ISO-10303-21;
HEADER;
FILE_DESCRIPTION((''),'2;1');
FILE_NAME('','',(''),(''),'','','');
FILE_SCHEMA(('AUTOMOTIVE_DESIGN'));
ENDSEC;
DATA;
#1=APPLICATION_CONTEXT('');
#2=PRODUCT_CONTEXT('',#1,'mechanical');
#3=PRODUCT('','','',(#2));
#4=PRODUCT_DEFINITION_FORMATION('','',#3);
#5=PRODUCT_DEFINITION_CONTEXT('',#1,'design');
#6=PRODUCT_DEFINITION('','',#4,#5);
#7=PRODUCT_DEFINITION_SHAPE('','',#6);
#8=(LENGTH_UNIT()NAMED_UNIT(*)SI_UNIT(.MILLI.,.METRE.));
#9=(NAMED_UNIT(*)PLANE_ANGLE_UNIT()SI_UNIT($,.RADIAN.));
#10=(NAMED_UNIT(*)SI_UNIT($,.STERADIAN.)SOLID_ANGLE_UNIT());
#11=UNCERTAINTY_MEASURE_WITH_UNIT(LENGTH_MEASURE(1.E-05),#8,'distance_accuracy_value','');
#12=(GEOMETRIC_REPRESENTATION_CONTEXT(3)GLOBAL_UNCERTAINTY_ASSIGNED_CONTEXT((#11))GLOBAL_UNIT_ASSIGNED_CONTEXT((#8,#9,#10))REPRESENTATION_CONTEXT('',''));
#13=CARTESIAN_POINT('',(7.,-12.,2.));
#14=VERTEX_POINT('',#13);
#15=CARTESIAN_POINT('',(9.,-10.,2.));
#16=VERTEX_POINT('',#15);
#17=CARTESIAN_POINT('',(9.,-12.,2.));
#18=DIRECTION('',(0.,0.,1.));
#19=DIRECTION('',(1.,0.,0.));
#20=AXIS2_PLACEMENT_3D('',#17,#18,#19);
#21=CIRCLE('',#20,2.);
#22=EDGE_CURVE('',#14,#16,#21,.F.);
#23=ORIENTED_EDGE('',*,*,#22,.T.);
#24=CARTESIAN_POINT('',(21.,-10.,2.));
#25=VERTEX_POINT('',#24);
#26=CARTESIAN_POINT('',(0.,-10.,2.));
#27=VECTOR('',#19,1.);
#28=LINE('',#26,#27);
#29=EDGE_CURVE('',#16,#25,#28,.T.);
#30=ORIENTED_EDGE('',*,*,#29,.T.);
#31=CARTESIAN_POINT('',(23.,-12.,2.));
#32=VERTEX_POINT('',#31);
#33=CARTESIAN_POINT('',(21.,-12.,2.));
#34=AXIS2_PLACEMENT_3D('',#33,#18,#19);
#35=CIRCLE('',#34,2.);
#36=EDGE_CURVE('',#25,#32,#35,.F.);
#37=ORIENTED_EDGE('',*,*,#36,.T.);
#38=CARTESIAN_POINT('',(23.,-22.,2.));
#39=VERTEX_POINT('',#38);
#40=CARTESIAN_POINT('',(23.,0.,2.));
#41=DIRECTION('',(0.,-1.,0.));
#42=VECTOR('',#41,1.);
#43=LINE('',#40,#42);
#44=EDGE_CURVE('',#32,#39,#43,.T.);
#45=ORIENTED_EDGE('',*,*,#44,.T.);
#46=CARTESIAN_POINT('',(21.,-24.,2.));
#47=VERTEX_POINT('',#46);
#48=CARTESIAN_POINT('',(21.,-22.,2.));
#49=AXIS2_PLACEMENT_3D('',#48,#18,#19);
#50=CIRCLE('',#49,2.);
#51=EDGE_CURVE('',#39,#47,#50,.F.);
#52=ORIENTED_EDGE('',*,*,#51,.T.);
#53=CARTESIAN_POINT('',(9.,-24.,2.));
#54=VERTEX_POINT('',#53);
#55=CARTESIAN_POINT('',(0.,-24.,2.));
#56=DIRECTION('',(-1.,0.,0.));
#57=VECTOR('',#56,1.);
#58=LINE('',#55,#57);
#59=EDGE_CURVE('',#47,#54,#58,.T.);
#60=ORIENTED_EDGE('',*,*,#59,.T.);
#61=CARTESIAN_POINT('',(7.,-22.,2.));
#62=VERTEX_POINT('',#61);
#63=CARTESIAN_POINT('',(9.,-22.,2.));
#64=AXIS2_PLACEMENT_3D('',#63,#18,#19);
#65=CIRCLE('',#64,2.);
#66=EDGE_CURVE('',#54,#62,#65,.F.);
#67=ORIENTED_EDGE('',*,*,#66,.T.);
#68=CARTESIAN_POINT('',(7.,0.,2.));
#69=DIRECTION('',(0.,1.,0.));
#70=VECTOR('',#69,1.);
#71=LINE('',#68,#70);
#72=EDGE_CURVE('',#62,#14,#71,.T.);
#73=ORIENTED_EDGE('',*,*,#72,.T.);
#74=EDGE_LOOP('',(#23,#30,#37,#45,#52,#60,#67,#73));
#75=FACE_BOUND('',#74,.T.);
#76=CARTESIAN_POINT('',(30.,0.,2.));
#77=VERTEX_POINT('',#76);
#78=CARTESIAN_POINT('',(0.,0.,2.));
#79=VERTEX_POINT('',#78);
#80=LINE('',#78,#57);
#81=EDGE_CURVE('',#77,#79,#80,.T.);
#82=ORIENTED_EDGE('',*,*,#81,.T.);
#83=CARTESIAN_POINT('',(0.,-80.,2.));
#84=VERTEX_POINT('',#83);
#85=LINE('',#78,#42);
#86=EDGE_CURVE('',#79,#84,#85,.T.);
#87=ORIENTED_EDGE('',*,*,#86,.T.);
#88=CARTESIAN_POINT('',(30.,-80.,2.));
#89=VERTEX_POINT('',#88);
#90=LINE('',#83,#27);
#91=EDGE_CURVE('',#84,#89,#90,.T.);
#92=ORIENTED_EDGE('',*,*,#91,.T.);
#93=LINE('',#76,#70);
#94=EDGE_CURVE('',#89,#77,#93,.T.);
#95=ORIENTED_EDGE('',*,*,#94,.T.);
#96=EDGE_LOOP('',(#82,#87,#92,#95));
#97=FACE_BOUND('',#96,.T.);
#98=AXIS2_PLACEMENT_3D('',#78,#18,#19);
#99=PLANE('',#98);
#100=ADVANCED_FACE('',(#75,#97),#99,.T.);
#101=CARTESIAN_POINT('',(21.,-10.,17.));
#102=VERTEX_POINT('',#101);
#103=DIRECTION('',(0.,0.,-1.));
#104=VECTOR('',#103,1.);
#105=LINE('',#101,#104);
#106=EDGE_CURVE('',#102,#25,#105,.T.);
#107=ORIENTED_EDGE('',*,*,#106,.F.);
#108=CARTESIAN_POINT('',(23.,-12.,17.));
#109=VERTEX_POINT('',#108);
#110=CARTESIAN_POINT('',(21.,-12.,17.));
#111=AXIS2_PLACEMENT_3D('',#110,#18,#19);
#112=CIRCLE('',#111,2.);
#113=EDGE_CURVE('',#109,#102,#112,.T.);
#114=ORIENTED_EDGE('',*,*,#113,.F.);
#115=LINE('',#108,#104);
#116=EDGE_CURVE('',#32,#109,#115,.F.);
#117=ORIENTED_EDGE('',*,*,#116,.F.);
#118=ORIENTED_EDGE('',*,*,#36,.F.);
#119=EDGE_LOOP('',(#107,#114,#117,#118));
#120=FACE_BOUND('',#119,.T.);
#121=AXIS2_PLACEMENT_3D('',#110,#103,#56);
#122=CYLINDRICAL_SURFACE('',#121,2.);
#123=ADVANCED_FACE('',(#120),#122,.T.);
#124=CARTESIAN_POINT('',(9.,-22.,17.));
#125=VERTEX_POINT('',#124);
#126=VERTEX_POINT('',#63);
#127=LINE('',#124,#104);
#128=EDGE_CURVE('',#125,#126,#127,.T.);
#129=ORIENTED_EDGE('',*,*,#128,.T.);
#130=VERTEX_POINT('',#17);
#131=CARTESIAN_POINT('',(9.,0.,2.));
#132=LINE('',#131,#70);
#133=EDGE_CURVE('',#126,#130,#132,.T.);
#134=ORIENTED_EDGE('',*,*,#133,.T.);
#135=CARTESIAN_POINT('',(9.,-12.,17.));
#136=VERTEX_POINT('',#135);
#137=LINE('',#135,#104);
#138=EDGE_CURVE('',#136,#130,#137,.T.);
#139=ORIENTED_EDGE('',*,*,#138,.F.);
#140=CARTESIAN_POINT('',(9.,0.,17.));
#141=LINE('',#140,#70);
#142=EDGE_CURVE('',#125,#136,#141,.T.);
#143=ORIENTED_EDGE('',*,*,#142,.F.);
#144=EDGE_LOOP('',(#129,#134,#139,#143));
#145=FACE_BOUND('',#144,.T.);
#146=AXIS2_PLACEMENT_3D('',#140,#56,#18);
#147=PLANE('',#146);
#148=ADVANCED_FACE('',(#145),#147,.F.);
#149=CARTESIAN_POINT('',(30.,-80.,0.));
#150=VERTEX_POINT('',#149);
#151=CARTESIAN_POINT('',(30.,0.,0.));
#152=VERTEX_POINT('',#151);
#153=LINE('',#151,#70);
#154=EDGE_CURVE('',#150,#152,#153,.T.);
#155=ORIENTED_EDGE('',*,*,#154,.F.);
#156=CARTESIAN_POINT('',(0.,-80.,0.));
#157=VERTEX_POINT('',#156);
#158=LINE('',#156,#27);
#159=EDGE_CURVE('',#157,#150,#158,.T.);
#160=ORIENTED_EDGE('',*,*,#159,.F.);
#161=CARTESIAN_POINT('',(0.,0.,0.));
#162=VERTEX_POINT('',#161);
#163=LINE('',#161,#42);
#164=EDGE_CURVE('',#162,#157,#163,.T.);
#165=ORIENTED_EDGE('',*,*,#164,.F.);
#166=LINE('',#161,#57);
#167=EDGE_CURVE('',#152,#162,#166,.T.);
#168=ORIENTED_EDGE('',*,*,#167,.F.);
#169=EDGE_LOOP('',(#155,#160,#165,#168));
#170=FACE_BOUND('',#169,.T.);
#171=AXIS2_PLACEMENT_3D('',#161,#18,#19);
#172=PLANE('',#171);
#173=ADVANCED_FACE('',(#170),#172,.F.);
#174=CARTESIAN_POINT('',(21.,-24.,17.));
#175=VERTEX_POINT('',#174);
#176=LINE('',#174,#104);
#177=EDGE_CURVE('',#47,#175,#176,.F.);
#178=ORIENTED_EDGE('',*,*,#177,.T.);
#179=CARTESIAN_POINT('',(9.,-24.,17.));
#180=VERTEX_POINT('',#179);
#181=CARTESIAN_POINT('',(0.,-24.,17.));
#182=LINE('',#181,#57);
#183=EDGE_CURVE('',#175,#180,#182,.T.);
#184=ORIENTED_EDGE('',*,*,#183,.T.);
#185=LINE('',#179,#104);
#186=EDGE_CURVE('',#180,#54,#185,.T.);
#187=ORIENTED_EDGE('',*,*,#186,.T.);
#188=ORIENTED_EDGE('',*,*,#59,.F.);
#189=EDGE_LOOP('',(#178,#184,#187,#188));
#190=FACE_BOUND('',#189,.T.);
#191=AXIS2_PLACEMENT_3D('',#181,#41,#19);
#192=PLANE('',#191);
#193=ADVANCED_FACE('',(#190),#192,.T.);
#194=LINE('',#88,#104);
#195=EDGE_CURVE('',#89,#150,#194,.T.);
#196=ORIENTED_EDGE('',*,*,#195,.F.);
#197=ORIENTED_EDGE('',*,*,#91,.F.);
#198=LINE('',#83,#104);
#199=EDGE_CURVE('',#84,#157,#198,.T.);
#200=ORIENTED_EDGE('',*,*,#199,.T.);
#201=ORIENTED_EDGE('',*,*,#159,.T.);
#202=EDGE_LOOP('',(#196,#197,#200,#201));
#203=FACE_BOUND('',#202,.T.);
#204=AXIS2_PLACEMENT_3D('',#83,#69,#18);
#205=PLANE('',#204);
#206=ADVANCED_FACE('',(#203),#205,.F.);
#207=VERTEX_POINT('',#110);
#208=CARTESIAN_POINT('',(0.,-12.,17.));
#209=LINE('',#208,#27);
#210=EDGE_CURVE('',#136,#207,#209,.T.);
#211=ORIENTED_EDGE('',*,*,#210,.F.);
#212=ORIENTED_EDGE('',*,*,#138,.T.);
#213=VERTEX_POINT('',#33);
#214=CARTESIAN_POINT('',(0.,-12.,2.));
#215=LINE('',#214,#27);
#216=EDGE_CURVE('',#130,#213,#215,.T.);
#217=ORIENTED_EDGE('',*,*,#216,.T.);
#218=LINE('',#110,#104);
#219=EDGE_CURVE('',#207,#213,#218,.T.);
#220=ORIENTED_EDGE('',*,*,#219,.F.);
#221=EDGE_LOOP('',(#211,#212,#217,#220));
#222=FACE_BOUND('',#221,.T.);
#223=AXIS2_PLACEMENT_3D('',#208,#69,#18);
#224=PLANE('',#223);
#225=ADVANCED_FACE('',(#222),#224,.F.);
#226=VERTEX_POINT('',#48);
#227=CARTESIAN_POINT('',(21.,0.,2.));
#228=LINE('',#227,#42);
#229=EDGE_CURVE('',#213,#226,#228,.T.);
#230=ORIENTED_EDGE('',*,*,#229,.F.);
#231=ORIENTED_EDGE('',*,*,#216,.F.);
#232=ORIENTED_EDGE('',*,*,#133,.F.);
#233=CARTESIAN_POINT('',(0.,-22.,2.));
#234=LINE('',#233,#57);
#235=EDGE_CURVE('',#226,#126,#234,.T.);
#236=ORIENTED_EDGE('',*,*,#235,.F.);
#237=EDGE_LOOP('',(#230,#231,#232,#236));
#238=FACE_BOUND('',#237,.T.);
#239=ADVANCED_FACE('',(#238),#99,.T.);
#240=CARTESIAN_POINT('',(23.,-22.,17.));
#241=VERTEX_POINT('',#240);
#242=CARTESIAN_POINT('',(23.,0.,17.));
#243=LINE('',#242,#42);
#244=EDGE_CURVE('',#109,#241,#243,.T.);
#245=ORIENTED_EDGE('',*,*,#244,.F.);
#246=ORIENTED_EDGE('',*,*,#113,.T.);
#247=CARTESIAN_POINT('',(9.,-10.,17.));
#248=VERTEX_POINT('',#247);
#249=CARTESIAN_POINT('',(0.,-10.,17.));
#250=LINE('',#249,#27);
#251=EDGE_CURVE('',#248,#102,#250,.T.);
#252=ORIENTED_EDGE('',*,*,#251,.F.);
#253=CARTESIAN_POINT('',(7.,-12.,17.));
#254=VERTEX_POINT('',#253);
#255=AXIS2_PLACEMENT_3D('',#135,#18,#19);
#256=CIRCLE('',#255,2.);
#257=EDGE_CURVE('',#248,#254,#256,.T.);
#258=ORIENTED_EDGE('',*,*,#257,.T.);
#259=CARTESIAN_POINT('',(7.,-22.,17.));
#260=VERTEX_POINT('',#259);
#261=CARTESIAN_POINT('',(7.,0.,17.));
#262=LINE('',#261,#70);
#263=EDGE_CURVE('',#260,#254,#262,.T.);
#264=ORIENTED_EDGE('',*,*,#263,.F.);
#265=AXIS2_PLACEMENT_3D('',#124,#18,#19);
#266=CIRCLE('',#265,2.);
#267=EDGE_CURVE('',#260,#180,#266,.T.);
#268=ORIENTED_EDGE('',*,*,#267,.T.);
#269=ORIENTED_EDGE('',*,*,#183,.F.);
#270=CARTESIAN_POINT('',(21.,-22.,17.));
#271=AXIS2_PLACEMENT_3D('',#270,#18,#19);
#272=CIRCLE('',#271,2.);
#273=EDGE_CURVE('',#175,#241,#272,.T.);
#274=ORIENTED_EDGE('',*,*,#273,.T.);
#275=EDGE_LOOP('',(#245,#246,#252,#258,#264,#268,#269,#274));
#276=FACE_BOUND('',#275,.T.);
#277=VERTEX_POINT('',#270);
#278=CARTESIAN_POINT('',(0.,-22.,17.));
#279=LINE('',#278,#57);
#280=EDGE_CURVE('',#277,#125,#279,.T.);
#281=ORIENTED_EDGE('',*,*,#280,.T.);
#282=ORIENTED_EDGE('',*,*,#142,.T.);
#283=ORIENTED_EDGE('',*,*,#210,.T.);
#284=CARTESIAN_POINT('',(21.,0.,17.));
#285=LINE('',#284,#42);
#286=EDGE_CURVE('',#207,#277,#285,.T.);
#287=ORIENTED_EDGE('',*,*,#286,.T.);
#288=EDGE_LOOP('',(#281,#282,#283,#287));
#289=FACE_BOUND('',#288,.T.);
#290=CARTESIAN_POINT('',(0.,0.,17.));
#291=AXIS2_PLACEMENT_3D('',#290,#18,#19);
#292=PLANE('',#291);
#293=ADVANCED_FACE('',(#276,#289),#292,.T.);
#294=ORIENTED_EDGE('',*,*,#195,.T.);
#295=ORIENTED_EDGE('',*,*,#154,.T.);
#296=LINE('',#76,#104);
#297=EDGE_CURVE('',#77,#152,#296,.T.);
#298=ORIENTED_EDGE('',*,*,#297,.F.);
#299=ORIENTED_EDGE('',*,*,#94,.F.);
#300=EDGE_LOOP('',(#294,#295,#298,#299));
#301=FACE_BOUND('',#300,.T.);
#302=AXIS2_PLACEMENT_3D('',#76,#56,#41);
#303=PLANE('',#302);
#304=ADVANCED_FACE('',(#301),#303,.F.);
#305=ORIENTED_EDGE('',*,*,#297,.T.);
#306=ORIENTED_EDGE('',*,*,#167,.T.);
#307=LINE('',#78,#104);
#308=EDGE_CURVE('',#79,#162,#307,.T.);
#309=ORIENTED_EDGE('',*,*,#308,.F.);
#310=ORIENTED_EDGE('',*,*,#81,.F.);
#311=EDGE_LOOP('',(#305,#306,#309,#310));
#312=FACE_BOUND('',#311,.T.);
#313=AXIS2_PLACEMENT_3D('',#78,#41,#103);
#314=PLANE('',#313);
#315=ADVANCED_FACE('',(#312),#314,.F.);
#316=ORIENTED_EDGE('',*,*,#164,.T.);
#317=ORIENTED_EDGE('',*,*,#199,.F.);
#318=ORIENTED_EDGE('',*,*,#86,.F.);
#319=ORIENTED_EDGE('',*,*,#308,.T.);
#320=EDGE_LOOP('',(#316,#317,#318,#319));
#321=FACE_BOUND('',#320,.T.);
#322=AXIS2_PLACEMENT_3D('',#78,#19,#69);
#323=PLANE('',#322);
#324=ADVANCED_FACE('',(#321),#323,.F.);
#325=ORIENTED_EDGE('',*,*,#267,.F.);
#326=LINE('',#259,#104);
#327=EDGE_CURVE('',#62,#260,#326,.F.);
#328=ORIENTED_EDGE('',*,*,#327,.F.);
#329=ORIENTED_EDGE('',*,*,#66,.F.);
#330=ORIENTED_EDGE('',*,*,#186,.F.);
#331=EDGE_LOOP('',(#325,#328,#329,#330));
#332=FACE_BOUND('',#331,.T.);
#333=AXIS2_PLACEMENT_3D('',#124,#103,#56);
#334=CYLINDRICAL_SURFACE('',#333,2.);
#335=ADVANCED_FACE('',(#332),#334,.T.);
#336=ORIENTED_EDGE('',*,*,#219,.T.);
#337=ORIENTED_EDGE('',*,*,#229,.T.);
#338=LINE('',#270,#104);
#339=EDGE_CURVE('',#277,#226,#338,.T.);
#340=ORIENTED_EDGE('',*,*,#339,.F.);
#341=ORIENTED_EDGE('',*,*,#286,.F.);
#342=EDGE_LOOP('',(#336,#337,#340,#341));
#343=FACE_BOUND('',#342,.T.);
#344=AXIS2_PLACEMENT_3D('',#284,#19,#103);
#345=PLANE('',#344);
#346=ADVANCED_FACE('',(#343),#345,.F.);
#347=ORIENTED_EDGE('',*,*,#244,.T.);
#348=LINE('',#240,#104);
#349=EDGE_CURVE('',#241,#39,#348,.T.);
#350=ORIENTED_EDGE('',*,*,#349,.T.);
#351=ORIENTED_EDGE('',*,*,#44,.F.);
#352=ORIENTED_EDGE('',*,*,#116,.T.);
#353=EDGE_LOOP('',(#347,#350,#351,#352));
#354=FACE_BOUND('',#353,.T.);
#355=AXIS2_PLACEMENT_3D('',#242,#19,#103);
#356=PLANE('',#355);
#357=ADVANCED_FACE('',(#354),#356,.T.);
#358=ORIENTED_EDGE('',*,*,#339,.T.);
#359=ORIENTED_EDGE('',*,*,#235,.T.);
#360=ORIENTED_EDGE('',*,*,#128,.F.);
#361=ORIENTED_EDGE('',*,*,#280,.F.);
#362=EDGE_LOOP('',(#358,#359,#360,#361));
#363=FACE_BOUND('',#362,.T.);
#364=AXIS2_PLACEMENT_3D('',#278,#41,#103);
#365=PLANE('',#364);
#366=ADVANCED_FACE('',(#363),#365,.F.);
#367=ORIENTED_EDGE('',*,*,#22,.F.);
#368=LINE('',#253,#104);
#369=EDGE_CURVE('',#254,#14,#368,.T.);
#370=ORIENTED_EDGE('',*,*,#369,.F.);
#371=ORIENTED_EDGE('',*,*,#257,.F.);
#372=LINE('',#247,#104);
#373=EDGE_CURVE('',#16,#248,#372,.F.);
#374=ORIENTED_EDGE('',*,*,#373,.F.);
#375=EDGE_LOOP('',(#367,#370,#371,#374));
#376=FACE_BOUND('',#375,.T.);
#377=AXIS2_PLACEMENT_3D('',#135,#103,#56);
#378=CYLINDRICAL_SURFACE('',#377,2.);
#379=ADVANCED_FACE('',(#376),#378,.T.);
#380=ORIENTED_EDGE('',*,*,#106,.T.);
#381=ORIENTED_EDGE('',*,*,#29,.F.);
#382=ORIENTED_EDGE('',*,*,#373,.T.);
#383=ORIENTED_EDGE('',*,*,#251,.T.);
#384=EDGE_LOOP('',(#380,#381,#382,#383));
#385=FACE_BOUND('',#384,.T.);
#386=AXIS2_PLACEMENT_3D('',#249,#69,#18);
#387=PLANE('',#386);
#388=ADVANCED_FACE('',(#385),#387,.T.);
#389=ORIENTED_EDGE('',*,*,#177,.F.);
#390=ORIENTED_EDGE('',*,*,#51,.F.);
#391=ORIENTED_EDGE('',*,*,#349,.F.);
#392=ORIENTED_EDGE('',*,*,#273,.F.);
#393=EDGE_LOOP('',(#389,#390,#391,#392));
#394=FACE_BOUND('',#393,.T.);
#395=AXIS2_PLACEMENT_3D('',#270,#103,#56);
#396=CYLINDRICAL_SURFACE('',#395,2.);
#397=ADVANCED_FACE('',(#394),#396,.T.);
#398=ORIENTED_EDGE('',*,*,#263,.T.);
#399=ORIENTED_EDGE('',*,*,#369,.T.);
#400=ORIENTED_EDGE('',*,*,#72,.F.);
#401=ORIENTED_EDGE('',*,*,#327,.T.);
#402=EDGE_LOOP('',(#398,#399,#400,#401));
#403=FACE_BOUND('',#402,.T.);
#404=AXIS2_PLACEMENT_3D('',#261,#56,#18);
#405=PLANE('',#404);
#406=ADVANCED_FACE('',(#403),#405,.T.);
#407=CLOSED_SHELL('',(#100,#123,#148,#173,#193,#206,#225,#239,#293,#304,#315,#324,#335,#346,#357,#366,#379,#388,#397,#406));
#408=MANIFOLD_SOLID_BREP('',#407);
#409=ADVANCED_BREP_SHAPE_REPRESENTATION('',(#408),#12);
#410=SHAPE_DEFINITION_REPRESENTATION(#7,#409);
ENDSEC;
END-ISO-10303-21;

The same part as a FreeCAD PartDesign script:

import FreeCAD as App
import Part
import Sketcher
from FreeCAD import Vector
Q = App.Units.Quantity


def edges_at(feature, points):
    """Names of the edges that pass closest to the given points."""
    edges = feature.Shape.Edges
    near = lambda p: min(range(len(edges)), key=lambda i: edges[i].distToShape(Part.Vertex(*p))[0])
    return sorted({f"Edge{near(p) + 1}" for p in points})

doc = App.newDocument("Part")
params = doc.addObject("Spreadsheet::Sheet", "Params")
for row, (alias, value) in enumerate([
    ("sketch1_width", "30 mm"),
    ("sketch1_height", "80 mm"),
    ("pad1_length", "2 mm"),
    ("sketch2_width", "16 mm"),
    ("sketch2_width2", "12 mm"),
    ("sketch2_height", "14 mm"),
    ("sketch2_height2", "10 mm"),
    ("pad2_length", "15 mm"),
    ("fillet_radius", "2 mm"),
], start=1):
    params.set(f"A{row}", alias)
    params.set(f"B{row}", "=" + value)
    params.setAlias(f"B{row}", alias)

body = doc.addObject("PartDesign::Body", "Body")

sketch1 = doc.addObject("Sketcher::SketchObject", "Sketch")
body.addObject(sketch1)
sketch1.AttachmentSupport = (doc.XY_Plane, [""])
sketch1.MapMode = "FlatFace"
sketch1.addGeometry([
    Part.LineSegment(Vector(0, 0, 0), Vector(0, -80, 0)),
    Part.LineSegment(Vector(0, -80, 0), Vector(30, -80, 0)),
    Part.LineSegment(Vector(30, -80, 0), Vector(30, 0, 0)),
    Part.LineSegment(Vector(30, 0, 0), Vector(0, 0, 0)),
], False)
sketch1.addConstraint([
    Sketcher.Constraint("Coincident", 0, 2, 1, 1),
    Sketcher.Constraint("Coincident", 1, 2, 2, 1),
    Sketcher.Constraint("Coincident", 2, 2, 3, 1),
    Sketcher.Constraint("Coincident", 3, 2, 0, 1),
    Sketcher.Constraint("Vertical", 0),
    Sketcher.Constraint("Horizontal", 1),
    Sketcher.Constraint("Vertical", 2),
    Sketcher.Constraint("Horizontal", 3),
    Sketcher.Constraint("Coincident", 3, 2, -1, 1),
    Sketcher.Constraint("DistanceX", 1, 1, 1, 2, Q("30 mm")),
    Sketcher.Constraint("DistanceY", 0, 2, 0, 1, Q("80 mm")),
])
sketch1.setExpression("Constraints[9]", "Params.sketch1_width")
sketch1.setExpression("Constraints[10]", "Params.sketch1_height")
pad1 = doc.addObject("PartDesign::Pad", "Pad")
body.addObject(pad1)
pad1.Profile = sketch1
pad1.setExpression("Length", "Params.pad1_length")

sketch2 = doc.addObject("Sketcher::SketchObject", "Sketch001")
body.addObject(sketch2)
sketch2.AttachmentSupport = (doc.XY_Plane, [""])
sketch2.MapMode = "FlatFace"
sketch2.AttachmentOffset = App.Placement(Vector(0, 0, 2), App.Rotation())
sketch2.addGeometry([
    Part.LineSegment(Vector(7, -10, 0), Vector(7, -24, 0)),
    Part.LineSegment(Vector(7, -24, 0), Vector(23, -24, 0)),
    Part.LineSegment(Vector(23, -24, 0), Vector(23, -10, 0)),
    Part.LineSegment(Vector(23, -10, 0), Vector(7, -10, 0)),
    Part.LineSegment(Vector(21, -22, 0), Vector(9, -22, 0)),
    Part.LineSegment(Vector(9, -22, 0), Vector(9, -12, 0)),
    Part.LineSegment(Vector(9, -12, 0), Vector(21, -12, 0)),
    Part.LineSegment(Vector(21, -12, 0), Vector(21, -22, 0)),
], False)
sketch2.addConstraint([
    Sketcher.Constraint("Coincident", 0, 2, 1, 1),
    Sketcher.Constraint("Coincident", 1, 2, 2, 1),
    Sketcher.Constraint("Coincident", 2, 2, 3, 1),
    Sketcher.Constraint("Coincident", 3, 2, 0, 1),
    Sketcher.Constraint("Coincident", 4, 2, 5, 1),
    Sketcher.Constraint("Coincident", 5, 2, 6, 1),
    Sketcher.Constraint("Coincident", 6, 2, 7, 1),
    Sketcher.Constraint("Coincident", 7, 2, 4, 1),
    Sketcher.Constraint("Vertical", 0),
    Sketcher.Constraint("Horizontal", 1),
    Sketcher.Constraint("Vertical", 2),
    Sketcher.Constraint("Horizontal", 3),
    Sketcher.Constraint("Horizontal", 4),
    Sketcher.Constraint("Vertical", 5),
    Sketcher.Constraint("Horizontal", 6),
    Sketcher.Constraint("Vertical", 7),
    Sketcher.Constraint("DistanceX", 1, 1, 1, 2, Q("16 mm")),
    Sketcher.Constraint("DistanceX", 4, 2, 4, 1, Q("12 mm")),
    Sketcher.Constraint("DistanceY", 0, 2, 0, 1, Q("14 mm")),
    Sketcher.Constraint("DistanceY", 5, 1, 5, 2, Q("10 mm")),
    Sketcher.Constraint("DistanceX", -1, 1, 0, 2, Q("7 mm")),
    Sketcher.Constraint("DistanceY", 0, 2, -1, 1, Q("24 mm")),
    Sketcher.Constraint("DistanceX", -1, 1, 4, 2, Q("9 mm")),
    Sketcher.Constraint("DistanceY", 4, 2, -1, 1, Q("22 mm")),
])
sketch2.setExpression("Constraints[16]", "Params.sketch2_width")
sketch2.setExpression("Constraints[17]", "Params.sketch2_width2")
sketch2.setExpression("Constraints[18]", "Params.sketch2_height")
sketch2.setExpression("Constraints[19]", "Params.sketch2_height2")
pad2 = doc.addObject("PartDesign::Pad", "Pad001")
body.addObject(pad2)
pad2.Profile = sketch2
pad2.setExpression("Length", "Params.pad2_length")
doc.recompute()

fillet = doc.addObject("PartDesign::Fillet", "Fillet")
body.addObject(fillet)
fillet.Base = (pad2, edges_at(pad2, [
    (23, -10, 9.5),
    (7, -10, 9.5),
    (7, -24, 9.5),
    (23, -24, 9.5),
]))
fillet.setExpression("Radius", "Params.fillet_radius")

doc.recompute()
